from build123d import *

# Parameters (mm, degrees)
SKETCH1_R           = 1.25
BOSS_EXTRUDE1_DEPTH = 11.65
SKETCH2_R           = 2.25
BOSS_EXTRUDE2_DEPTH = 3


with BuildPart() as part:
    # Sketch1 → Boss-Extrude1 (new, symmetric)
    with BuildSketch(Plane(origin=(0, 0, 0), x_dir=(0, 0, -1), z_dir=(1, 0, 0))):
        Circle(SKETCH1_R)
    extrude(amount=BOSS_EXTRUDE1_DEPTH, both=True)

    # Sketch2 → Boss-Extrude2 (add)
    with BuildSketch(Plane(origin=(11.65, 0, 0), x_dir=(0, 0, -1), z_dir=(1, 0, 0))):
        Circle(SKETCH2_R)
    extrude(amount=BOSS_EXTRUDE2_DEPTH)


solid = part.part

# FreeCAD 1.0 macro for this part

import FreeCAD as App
import Part
import Sketcher

doc = App.newDocument("Part")
body = doc.addObject("PartDesign::Body", "Body")

# Sketch on YZ plane
sketch1 = body.newObject("Sketcher::SketchObject", "Sketch")
sketch1.AttachmentSupport = (doc.getObject("YZ_Plane"), [""])
sketch1.MapMode = "FlatFace"
sketch1.addGeometry(Part.Circle(App.Vector(0, 0, 0), App.Vector(0, 0, 1), 1.2), False)
sketch1.addConstraint([
    Sketcher.Constraint("Coincident", 0, 3, -1, 1),
    Sketcher.Constraint("Diameter", 0, 2.5),
])
pad1 = body.newObject("PartDesign::Pad", "Pad")
pad1.Profile = sketch1
pad1.Length = 23.3
pad1.Midplane = True

# Sketch on YZ plane
sketch2 = body.newObject("Sketcher::SketchObject", "Sketch001")
sketch2.AttachmentSupport = (doc.getObject("YZ_Plane"), [""])
sketch2.MapMode = "FlatFace"
sketch2.AttachmentOffset = App.Placement(App.Vector(0, 0, 11.65), App.Rotation())
sketch2.addGeometry(Part.Circle(App.Vector(0, 0, 0), App.Vector(0, 0, 1), 2.2), False)
sketch2.addConstraint([
    Sketcher.Constraint("Coincident", 0, 3, -1, 1),
    Sketcher.Constraint("Diameter", 0, 4.5),
])
pad2 = body.newObject("PartDesign::Pad", "Pad001")
pad2.Profile = sketch2
pad2.Length = 3

doc.recompute()
